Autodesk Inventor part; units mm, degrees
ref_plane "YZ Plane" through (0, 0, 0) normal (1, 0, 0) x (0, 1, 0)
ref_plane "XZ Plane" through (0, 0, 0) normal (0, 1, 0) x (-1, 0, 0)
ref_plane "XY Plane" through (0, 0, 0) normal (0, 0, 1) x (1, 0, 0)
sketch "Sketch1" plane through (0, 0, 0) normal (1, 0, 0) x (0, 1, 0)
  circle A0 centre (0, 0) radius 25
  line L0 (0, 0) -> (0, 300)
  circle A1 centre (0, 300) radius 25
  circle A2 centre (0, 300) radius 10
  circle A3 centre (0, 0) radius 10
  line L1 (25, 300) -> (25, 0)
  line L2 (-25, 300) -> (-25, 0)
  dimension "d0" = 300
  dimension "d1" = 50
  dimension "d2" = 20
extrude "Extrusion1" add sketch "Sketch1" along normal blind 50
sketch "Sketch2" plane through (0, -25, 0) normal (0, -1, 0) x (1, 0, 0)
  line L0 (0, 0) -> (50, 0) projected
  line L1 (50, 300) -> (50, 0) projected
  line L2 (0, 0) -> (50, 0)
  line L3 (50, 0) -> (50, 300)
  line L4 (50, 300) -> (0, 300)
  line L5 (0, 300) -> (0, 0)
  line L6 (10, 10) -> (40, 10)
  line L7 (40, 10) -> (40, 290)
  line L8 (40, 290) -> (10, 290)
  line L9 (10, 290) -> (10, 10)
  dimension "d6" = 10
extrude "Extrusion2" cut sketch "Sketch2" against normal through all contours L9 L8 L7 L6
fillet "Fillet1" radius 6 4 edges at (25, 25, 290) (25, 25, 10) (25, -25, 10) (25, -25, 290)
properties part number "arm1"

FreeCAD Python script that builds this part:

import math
import FreeCAD as App
import Part
import Sketcher
Q = App.Units.Quantity


def edges_at(feature, points):
    """Names of the edges that pass closest to the given points."""
    edges = feature.Shape.Edges
    near = lambda p: min(range(len(edges)), key=lambda i: edges[i].distToShape(Part.Vertex(*p))[0])
    return sorted({f"Edge{near(p) + 1}" for p in points})


def add_polygon(sketch, points):
    """Adds a closed chain of lines whose ends are joined by coincident constraints."""
    first, n = sketch.GeometryCount, len(points)
    for a, b in zip(points, points[1:] + points[:1]):
        sketch.addGeometry(Part.LineSegment(App.Vector(*a, 0), App.Vector(*b, 0)), False)
    for i in range(n):
        sketch.addConstraint(Sketcher.Constraint("Coincident", first + i, 2, first + (i + 1) % n, 1))

doc = App.newDocument("Part")
body = doc.addObject("PartDesign::Body", "Body")

sketch1 = body.newObject("Sketcher::SketchObject", "Sketch")
sketch1.AttachmentSupport = (doc.getObject("YZ_Plane"), [""])
sketch1.MapMode = "FlatFace"
sketch1.addGeometry([
    Part.ArcOfCircle(Part.Circle(App.Vector(0, 0, 0), App.Vector(0, 0, 1), 25), math.radians(180), math.radians(360)),
    Part.LineSegment(App.Vector(25, 0, 0), App.Vector(25, 300, 0)),
    Part.ArcOfCircle(Part.Circle(App.Vector(0, 300, 0), App.Vector(0, 0, 1), 25), math.radians(0), math.radians(180)),
    Part.LineSegment(App.Vector(-25, 300, 0), App.Vector(-25, 0, 0)),
    Part.Circle(App.Vector(0, 0, 0), App.Vector(0, 0, 1), 10),
    Part.Circle(App.Vector(0, 300, 0), App.Vector(0, 0, 1), 10),
], False)
sketch1.addConstraint([
    Sketcher.Constraint("Tangent", 0, 2, 1, 1),
    Sketcher.Constraint("Tangent", 1, 2, 2, 1),
    Sketcher.Constraint("Tangent", 2, 2, 3, 1),
    Sketcher.Constraint("Tangent", 3, 2, 0, 1),
    Sketcher.Constraint("Vertical", 1),
    Sketcher.Constraint("Vertical", 3),
    Sketcher.Constraint("Coincident", 0, 3, -1, 1),
    Sketcher.Constraint("Coincident", 4, 3, -1, 1),
    Sketcher.Constraint("Coincident", 5, 3, 2, 3),
    Sketcher.Constraint("Equal", 4, 5),
    Sketcher.Constraint("Diameter", 4, Q("20 mm")),
    Sketcher.Constraint("Radius", 0, Q("25 mm")),
    Sketcher.Constraint("DistanceY", 1, 1, 1, 2, Q("300 mm")),
])
pad1 = body.newObject("PartDesign::Pad", "Pad")
pad1.Profile = sketch1
pad1.Length = 50

sketch2 = body.newObject("Sketcher::SketchObject", "Sketch001")
sketch2.AttachmentSupport = (doc.getObject("XZ_Plane"), [""])
sketch2.MapMode = "FlatFace"
sketch2.AttachmentOffset = App.Placement(App.Vector(0, 0, 25), App.Rotation())
add_polygon(sketch2, [(10, 290), (10, 10), (40, 10), (40, 290)])
sketch2.addConstraint([
    Sketcher.Constraint("Vertical", 0),
    Sketcher.Constraint("Horizontal", 1),
    Sketcher.Constraint("Vertical", 2),
    Sketcher.Constraint("Horizontal", 3),
    Sketcher.Constraint("DistanceX", -1, 1, 0, 2, Q("10 mm")),
    Sketcher.Constraint("DistanceY", -1, 1, 0, 2, Q("10 mm")),
    Sketcher.Constraint("DistanceX", 1, 1, 1, 2, Q("30 mm")),
    Sketcher.Constraint("DistanceY", 0, 2, 0, 1, Q("280 mm")),
])
pocket1 = body.newObject("PartDesign::Pocket", "Pocket")
pocket1.Profile = sketch2
pocket1.Type = "ThroughAll"
doc.recompute()

fillet = body.newObject("PartDesign::Fillet", "Fillet")
fillet.Base = (pocket1, edges_at(pocket1, [
    (25, 25, 290),
    (25, 25, 10),
    (25, -25, 10),
    (25, -25, 290),
]))
fillet.Radius = 6

doc.recompute()
